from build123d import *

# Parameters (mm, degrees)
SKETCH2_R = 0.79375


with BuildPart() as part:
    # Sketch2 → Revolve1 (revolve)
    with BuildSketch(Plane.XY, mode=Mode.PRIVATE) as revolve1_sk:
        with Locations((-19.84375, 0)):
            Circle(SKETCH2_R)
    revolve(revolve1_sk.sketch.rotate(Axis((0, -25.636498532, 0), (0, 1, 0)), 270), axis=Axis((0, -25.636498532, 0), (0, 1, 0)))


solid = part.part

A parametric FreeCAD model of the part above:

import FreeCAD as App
import Part
import Sketcher
from FreeCAD import Vector
Q = App.Units.Quantity

doc = App.newDocument("Part")
body = doc.addObject("PartDesign::Body", "Body")

# Sketch on XY plane
sketch1 = body.newObject("Sketcher::SketchObject", "Sketch")
sketch1.AttachmentSupport = (doc.getObject("XY_Plane"), [""])
sketch1.MapMode = "FlatFace"
sketch1.addGeometry(Part.Circle(Vector(-19.8, 0, 0), Vector(0, 0, 1), 0.8), False)
sketch1.addConstraint([
    Sketcher.Constraint("PointOnObject", 0, 3, -1),
    Sketcher.Constraint("Diameter", 0, Q("0.0625 in")),
    Sketcher.Constraint("DistanceX", 0, 3, -1, 1, Q("0.78125 in")),
])
revolution = body.newObject("PartDesign::Revolution", "Revolution")
revolution.Profile = sketch1
revolution.ReferenceAxis = (sketch1, ["V_Axis"])
revolution.Angle = 360

doc.recompute()
